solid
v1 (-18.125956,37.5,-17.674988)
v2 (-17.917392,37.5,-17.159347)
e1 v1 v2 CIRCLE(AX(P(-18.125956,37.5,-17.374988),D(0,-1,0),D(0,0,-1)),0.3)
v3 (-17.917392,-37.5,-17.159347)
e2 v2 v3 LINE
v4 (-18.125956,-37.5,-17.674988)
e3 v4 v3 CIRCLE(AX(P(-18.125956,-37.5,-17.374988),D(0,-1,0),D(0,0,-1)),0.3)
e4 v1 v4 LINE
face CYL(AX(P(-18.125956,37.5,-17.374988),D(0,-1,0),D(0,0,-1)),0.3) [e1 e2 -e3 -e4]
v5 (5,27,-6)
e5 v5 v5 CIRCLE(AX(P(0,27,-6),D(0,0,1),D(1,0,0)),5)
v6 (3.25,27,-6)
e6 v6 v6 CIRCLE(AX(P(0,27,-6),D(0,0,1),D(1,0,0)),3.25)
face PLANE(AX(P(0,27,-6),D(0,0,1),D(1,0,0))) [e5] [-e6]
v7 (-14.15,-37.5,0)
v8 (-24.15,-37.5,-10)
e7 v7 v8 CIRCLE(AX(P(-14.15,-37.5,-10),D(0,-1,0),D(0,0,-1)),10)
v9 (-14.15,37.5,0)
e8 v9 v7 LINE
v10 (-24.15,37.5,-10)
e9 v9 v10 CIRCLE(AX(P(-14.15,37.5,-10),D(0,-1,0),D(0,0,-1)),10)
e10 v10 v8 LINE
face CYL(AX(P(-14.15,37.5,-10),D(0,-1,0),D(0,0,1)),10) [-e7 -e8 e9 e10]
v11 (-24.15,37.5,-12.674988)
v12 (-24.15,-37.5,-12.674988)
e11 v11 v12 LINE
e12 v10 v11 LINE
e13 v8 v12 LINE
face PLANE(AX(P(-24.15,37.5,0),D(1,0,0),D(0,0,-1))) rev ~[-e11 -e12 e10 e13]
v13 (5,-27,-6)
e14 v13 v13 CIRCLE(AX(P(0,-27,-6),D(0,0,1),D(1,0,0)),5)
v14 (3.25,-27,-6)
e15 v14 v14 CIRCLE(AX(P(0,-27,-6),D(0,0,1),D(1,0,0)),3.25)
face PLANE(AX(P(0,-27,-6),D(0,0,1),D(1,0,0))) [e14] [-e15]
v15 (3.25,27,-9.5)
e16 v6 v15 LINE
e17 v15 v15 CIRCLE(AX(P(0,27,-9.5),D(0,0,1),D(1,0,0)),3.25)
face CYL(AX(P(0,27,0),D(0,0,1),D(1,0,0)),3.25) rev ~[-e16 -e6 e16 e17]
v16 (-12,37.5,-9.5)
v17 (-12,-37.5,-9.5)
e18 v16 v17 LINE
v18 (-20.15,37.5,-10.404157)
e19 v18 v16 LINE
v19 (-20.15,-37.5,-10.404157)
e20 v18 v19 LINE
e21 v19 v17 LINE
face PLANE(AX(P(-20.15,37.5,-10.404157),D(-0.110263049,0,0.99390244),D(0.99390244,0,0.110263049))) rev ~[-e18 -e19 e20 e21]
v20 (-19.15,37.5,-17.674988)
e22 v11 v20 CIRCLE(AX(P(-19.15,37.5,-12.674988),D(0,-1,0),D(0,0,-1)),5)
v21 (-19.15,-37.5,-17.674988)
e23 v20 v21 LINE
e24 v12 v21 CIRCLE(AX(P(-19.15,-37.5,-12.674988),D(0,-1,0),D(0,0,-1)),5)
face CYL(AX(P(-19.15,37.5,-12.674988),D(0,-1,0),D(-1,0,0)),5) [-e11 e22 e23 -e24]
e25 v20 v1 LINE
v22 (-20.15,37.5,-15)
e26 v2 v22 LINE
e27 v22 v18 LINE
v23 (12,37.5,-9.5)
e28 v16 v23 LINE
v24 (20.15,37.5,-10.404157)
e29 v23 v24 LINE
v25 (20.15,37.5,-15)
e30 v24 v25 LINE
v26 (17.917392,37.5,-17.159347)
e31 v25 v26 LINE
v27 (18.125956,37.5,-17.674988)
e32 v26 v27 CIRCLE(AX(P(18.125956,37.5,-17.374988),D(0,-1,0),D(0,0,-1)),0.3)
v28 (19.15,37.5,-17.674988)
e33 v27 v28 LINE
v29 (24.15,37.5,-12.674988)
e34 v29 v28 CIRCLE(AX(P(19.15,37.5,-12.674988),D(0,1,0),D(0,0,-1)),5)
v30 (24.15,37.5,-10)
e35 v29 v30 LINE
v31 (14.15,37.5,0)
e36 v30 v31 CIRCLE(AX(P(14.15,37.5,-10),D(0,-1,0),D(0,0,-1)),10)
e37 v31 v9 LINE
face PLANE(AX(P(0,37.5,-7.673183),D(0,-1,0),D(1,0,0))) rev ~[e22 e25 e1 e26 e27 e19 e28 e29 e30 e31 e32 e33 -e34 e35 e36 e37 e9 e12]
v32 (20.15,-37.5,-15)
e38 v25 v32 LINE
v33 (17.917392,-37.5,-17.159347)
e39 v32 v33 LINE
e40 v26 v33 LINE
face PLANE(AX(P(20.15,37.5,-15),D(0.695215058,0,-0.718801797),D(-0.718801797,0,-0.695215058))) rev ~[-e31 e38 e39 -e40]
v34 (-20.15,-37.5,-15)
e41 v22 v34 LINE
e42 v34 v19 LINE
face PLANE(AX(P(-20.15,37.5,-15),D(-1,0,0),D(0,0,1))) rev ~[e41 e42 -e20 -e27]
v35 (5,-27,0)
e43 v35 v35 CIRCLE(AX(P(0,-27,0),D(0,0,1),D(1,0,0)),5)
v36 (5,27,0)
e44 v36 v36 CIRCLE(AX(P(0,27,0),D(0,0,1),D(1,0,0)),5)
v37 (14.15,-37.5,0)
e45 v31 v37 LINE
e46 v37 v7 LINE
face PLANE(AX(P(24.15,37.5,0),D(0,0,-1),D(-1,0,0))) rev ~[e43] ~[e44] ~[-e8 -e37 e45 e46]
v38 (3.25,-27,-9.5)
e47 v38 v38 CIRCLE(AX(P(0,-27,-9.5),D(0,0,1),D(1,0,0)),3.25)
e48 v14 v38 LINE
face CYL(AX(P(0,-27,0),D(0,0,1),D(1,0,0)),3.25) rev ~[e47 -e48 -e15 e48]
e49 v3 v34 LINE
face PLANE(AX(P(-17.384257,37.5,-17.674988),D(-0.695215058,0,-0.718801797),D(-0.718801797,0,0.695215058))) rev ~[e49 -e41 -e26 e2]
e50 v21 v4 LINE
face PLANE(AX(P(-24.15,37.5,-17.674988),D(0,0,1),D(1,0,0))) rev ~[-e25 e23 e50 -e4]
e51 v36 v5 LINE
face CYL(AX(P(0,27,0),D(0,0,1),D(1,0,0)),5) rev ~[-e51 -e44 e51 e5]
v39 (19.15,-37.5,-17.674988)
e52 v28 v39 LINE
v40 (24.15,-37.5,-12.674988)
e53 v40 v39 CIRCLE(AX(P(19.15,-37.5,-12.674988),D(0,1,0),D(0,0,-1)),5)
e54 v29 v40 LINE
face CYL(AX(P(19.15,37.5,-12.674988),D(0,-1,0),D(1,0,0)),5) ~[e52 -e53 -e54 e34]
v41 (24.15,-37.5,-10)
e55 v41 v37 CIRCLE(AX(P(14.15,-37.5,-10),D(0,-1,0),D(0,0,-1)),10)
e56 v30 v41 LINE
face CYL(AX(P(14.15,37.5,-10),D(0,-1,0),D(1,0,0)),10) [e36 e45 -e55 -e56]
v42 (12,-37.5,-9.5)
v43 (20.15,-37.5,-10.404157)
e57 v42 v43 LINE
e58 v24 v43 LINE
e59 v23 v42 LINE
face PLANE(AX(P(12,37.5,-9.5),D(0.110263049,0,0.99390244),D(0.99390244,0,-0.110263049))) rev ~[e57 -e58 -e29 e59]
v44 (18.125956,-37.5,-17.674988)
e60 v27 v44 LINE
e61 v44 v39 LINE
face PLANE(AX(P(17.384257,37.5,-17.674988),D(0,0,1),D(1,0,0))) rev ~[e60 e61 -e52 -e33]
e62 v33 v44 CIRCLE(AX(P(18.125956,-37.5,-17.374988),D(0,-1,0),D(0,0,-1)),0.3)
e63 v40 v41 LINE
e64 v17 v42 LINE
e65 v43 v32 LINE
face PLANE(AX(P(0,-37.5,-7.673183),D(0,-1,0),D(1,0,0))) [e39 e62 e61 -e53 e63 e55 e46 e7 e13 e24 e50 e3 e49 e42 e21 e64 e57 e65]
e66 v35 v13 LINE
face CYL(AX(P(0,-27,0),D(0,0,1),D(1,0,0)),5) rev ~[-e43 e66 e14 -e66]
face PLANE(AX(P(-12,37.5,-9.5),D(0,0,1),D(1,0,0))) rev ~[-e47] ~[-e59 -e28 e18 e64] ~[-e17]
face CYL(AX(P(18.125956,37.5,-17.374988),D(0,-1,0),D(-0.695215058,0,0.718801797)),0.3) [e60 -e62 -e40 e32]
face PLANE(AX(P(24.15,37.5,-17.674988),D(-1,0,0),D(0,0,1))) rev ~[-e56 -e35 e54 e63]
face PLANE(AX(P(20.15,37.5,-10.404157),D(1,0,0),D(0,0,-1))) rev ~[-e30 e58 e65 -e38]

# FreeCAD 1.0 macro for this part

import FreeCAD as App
import Part
import Sketcher


def edges_at(feature, points):
    """Names of the edges that pass closest to the given points."""
    edges = feature.Shape.Edges
    near = lambda p: min(range(len(edges)), key=lambda i: edges[i].distToShape(Part.Vertex(*p))[0])
    return sorted({f"Edge{near(p) + 1}" for p in points})


def add_polygon(sketch, points):
    """Adds a closed chain of lines whose ends are joined by coincident constraints."""
    first, n = sketch.GeometryCount, len(points)
    for a, b in zip(points, points[1:] + points[:1]):
        sketch.addGeometry(Part.LineSegment(App.Vector(*a, 0), App.Vector(*b, 0)), False)
    for i in range(n):
        sketch.addConstraint(Sketcher.Constraint("Coincident", first + i, 2, first + (i + 1) % n, 1))

doc = App.newDocument("Part")
body = doc.addObject("PartDesign::Body", "Body")

sketch1 = doc.addObject("Sketcher::SketchObject", "Sketch")
body.addObject(sketch1)
sketch1.AttachmentSupport = (doc.XZ_Plane, [""])
sketch1.MapMode = "FlatFace"
add_polygon(sketch1, [(-20.1, 4.6), (-12, 5.5), (12, 5.5), (20.1, 4.6), (20.1, 0), (17.4, -2.7), (24.1, -2.7), (24.1, 15), (-24.1, 15), (-24.1, -2.7), (-17.4, -2.7), (-20.1, 0)])
sketch1.addConstraint([
    Sketcher.Constraint("Horizontal", 1),
    Sketcher.Constraint("Vertical", 3),
    Sketcher.Constraint("Horizontal", 5),
    Sketcher.Constraint("Vertical", 6),
    Sketcher.Constraint("Horizontal", 7),
    Sketcher.Constraint("Vertical", 8),
    Sketcher.Constraint("Horizontal", 9),
    Sketcher.Constraint("Vertical", 11),
    Sketcher.Constraint("Symmetric", 3, 2, 10, 2, -1, 1),
    Sketcher.Constraint("Symmetric", 5, 2, 8, 2, -2),
    Sketcher.Constraint("PointOnObject", 3, 2, -1),
    Sketcher.Constraint("Horizontal", 2, 2, 11, 2),
    Sketcher.Constraint("Equal", 5, 9),
    Sketcher.Constraint("Equal", 0, 2),
    Sketcher.Constraint("DistanceX", 1, 1, 1, 2, 24.0),
    Sketcher.Constraint("DistanceX", 7, 2, 7, 1, 48.3),
    Sketcher.Constraint("DistanceY", -1, 1, 6, 2, 15.0),
    Sketcher.Constraint("DistanceX", 3, 2, 5, 2, 4.0),
    Sketcher.Constraint("Distance", 0, 8.2),
    Sketcher.Constraint("DistanceY", -1, 1, 0, 2, 5.5),
    Sketcher.Constraint("DistanceX", 5, 1, 5, 2, 6.765743),
    Sketcher.Constraint("DistanceY", 6, 1, 6, 2, 17.674988),
])
pad1 = doc.addObject("PartDesign::Pad", "Pad")
body.addObject(pad1)
pad1.Profile = sketch1
pad1.Length = 75
doc.recompute()

fillet = doc.addObject("PartDesign::Fillet", "Fillet")
body.addObject(fillet)
fillet.Base = (pad1, edges_at(pad1, [(-17.384, -37.5, -2.675), (17.384, -37.5, -2.675)]))
fillet.Radius = 0.3
doc.recompute()

fillet2 = doc.addObject("PartDesign::Fillet", "Fillet001")
body.addObject(fillet2)
fillet2.Base = (fillet, edges_at(fillet, [(-24.15, -37.5, 15), (24.15, -37.5, 15)]))
fillet2.Radius = 10
doc.recompute()

fillet3 = doc.addObject("PartDesign::Fillet", "Fillet002")
body.addObject(fillet3)
fillet3.Base = (fillet2, edges_at(fillet2, [(-24.15, -37.5, -2.675), (24.15, -37.5, -2.675)]))
fillet3.Radius = 5
body2 = doc.addObject("PartDesign::Body", "Body001")
doc.recompute()

body.Placement = App.Placement(App.Vector(0, 37.5, 0), App.Rotation(App.Vector(0, 0, 1), 0))
boolean = doc.addObject("PartDesign::Boolean", "Boolean")
body2.addObject(boolean)
boolean.Type = "Fuse"
boolean.addObjects([body])

sketch2 = doc.addObject("Sketcher::SketchObject", "Sketch001")
body2.addObject(sketch2)
sketch2.AttachmentSupport = (doc.getObject("XY_Plane001"), [""])
sketch2.MapMode = "FlatFace"
sketch2.AttachmentOffset = App.Placement(App.Vector(0, 0, 15), App.Rotation())
sketch2.addGeometry([
    Part.Circle(App.Vector(0, 27, 0), App.Vector(0, 0, 1), 3.2),
    Part.Circle(App.Vector(0, -27, 0), App.Vector(0, 0, 1), 3.2),
], False)
sketch2.addConstraint([
    Sketcher.Constraint("Equal", 0, 1),
    Sketcher.Constraint("Symmetric", 0, 3, 1, 3, -1, 1),
    Sketcher.Constraint("PointOnObject", 0, 3, -2),
    Sketcher.Constraint("Diameter", 0, 6.5),
    Sketcher.Constraint("DistanceY", -1, 1, 0, 3, 27.0),
])
pocket1 = doc.addObject("PartDesign::Pocket", "Pocket")
body2.addObject(pocket1)
pocket1.Profile = sketch2
pocket1.Length = 25

sketch3 = doc.addObject("Sketcher::SketchObject", "Sketch002")
body2.addObject(sketch3)
sketch3.AttachmentSupport = (doc.getObject("XY_Plane001"), [""])
sketch3.MapMode = "FlatFace"
sketch3.AttachmentOffset = App.Placement(App.Vector(0, 0, 15), App.Rotation())
sketch3.addGeometry([
    Part.Circle(App.Vector(0, 27, 0), App.Vector(0, 0, 1), 5),
    Part.Circle(App.Vector(0, 27, 0), App.Vector(0, 0, 1), 3.2),
    Part.Circle(App.Vector(0, -27, 0), App.Vector(0, 0, 1), 5),
    Part.Circle(App.Vector(0, -27, 0), App.Vector(0, 0, 1), 3.2),
], False)
sketch3.addConstraint([
    Sketcher.Constraint("Coincident", 1, 3, 0, 3),
    Sketcher.Constraint("Coincident", 3, 3, 2, 3),
    Sketcher.Constraint("Equal", 0, 2),
    Sketcher.Constraint("Equal", 1, 3),
    Sketcher.Constraint("Symmetric", 0, 3, 2, 3, -1, 1),
    Sketcher.Constraint("PointOnObject", 0, 3, -2),
    Sketcher.Constraint("Diameter", 0, 10.0),
    Sketcher.Constraint("Diameter", 1, 6.5),
    Sketcher.Constraint("DistanceY", -1, 1, 0, 3, 27.0),
])
pocket2 = doc.addObject("PartDesign::Pocket", "Pocket001")
body2.addObject(pocket2)
pocket2.Profile = sketch3
pocket2.Length = 6
body3 = doc.addObject("PartDesign::Body", "Body002")
doc.recompute()

body2.Placement = App.Placement(App.Vector(0, 0, -15), App.Rotation(App.Vector(0, 0, 1), 0))
boolean2 = doc.addObject("PartDesign::Boolean", "Boolean001")
body3.addObject(boolean2)
boolean2.Type = "Fuse"
boolean2.addObjects([body2])

doc.recompute()
